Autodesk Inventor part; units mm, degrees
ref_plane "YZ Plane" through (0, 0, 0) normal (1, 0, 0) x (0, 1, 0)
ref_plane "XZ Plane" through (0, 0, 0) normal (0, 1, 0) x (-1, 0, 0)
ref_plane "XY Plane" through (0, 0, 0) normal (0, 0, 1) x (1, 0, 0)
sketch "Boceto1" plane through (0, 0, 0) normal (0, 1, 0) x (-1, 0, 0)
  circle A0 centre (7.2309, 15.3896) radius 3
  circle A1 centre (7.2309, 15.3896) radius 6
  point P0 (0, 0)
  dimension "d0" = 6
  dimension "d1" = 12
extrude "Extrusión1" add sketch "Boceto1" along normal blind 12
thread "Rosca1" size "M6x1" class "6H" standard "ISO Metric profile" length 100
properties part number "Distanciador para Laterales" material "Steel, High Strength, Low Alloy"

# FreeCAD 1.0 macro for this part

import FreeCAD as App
import Part
import Sketcher

V = App.Vector

doc = App.newDocument("Part")
body = doc.addObject("PartDesign::Body", "Body")

# Sketch on XZ plane
sketch1 = body.newObject("Sketcher::SketchObject", "Sketch")
sketch1.AttachmentSupport = (doc.getObject("XZ_Plane"), [""])
sketch1.MapMode = "FlatFace"
sketch1.addGeometry([
    Part.Circle(V(-7.2309, 15.3896, 0), V(0, 0, 1), 6),
    Part.Circle(V(-7.2309, 15.3896, 0), V(0, 0, 1), 3),
], False)
sketch1.addConstraint([
    Sketcher.Constraint("Coincident", 1, 3, 0, 3),
    Sketcher.Constraint("Diameter", 0, 12.0),
    Sketcher.Constraint("Diameter", 1, 6.0),
    Sketcher.Constraint("DistanceX", 0, 3, -1, 1, 7.231),
    Sketcher.Constraint("DistanceY", -1, 1, 0, 3, 15.3896),
])
pad1 = body.newObject("PartDesign::Pad", "Pad")
pad1.Profile = sketch1
pad1.Length = 12
pad1.Reversed = True

doc.recompute()
